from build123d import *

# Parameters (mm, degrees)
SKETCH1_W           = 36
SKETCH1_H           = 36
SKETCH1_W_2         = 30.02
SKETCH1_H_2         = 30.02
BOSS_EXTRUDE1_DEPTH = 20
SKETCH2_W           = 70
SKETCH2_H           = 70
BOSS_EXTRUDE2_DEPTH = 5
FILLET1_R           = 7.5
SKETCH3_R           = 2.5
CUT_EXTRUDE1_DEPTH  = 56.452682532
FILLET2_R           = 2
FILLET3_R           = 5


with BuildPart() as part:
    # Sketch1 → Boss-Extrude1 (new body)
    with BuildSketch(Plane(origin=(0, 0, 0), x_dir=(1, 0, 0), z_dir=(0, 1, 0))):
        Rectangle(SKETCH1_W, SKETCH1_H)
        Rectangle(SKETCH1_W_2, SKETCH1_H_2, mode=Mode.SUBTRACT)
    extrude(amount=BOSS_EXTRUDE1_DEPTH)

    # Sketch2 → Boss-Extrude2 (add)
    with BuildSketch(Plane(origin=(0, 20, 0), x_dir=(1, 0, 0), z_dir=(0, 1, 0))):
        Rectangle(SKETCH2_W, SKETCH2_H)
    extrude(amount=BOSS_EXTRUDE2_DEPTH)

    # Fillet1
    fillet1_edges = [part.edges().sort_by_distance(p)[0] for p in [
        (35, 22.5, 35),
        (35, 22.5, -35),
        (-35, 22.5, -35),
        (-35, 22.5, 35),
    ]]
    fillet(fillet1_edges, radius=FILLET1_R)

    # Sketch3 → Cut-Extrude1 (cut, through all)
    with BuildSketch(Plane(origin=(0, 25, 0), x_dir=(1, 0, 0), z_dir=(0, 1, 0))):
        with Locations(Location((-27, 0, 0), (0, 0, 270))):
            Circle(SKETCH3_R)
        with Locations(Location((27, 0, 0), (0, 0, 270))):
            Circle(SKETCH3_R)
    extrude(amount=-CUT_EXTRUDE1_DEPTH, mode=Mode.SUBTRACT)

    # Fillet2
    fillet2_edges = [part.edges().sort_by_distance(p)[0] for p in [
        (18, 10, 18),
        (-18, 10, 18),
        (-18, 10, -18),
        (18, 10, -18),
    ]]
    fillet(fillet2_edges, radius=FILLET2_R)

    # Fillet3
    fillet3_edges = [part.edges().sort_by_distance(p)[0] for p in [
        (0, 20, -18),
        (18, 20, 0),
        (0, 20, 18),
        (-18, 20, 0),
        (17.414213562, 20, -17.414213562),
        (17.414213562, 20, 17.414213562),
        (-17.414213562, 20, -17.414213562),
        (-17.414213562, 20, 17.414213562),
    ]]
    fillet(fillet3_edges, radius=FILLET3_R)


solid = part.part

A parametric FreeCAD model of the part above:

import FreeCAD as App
import Part
import Sketcher
from FreeCAD import Vector


def edges_at(feature, points):
    """Names of the edges that pass closest to the given points."""
    edges = feature.Shape.Edges
    near = lambda p: min(range(len(edges)), key=lambda i: edges[i].distToShape(Part.Vertex(*p))[0])
    return sorted({f"Edge{near(p) + 1}" for p in points})


def add_polygon(sketch, points):
    """Adds a closed chain of lines whose ends are joined by coincident constraints."""
    first, n = sketch.GeometryCount, len(points)
    for a, b in zip(points, points[1:] + points[:1]):
        sketch.addGeometry(Part.LineSegment(App.Vector(*a, 0), App.Vector(*b, 0)), False)
    for i in range(n):
        sketch.addConstraint(Sketcher.Constraint("Coincident", first + i, 2, first + (i + 1) % n, 1))

doc = App.newDocument("Part")
body = doc.addObject("PartDesign::Body", "Body")

sketch1 = body.newObject("Sketcher::SketchObject", "Sketch")
sketch1.AttachmentSupport = (doc.getObject("XZ_Plane"), [""])
sketch1.MapMode = "FlatFace"
add_polygon(sketch1, [(-18, -18), (-18, 18), (18, 18), (18, -18)])
add_polygon(sketch1, [(15.01, 15.01), (-15.01, 15.01), (-15.01, -15.01), (15.01, -15.01)])
sketch1.addConstraint(Sketcher.Constraint("Vertical", 0))
sketch1.addConstraint(Sketcher.Constraint("Horizontal", 1))
sketch1.addConstraint(Sketcher.Constraint("Vertical", 2))
sketch1.addConstraint(Sketcher.Constraint("Horizontal", 3))
sketch1.addConstraint(Sketcher.Constraint("Horizontal", 4))
sketch1.addConstraint(Sketcher.Constraint("Vertical", 5))
sketch1.addConstraint(Sketcher.Constraint("Horizontal", 6))
sketch1.addConstraint(Sketcher.Constraint("Vertical", 7))
sketch1.addConstraint(Sketcher.Constraint("Symmetric", 0, 2, 2, 2, -1, 1))
sketch1.addConstraint(Sketcher.Constraint("Symmetric", 4, 2, 6, 2, -1, 1))
sketch1.addConstraint(Sketcher.Constraint("Equal", 3, 0))
sketch1.addConstraint(Sketcher.Constraint("Equal", 6, 5))
sketch1.addConstraint(Sketcher.Constraint("DistanceX", 1, 1, 1, 2, 36.0))
sketch1.addConstraint(Sketcher.Constraint("DistanceX", 4, 2, 4, 1, 30.02))
pad1 = body.newObject("PartDesign::Pad", "Pad")
pad1.Profile = sketch1
pad1.Length = 20
pad1.Reversed = True

sketch2 = body.newObject("Sketcher::SketchObject", "Sketch001")
sketch2.AttachmentSupport = (doc.getObject("XZ_Plane"), [""])
sketch2.MapMode = "FlatFace"
sketch2.AttachmentOffset = App.Placement(Vector(0, 0, -20), App.Rotation())
add_polygon(sketch2, [(-35, -35), (-35, 35), (35, 35), (35, -35)])
sketch2.addConstraint(Sketcher.Constraint("Vertical", 0))
sketch2.addConstraint(Sketcher.Constraint("Horizontal", 1))
sketch2.addConstraint(Sketcher.Constraint("Vertical", 2))
sketch2.addConstraint(Sketcher.Constraint("Horizontal", 3))
sketch2.addConstraint(Sketcher.Constraint("Symmetric", 0, 2, 2, 2, -1, 1))
sketch2.addConstraint(Sketcher.Constraint("Equal", 3, 0))
sketch2.addConstraint(Sketcher.Constraint("DistanceX", 1, 1, 1, 2, 70.0))
pad2 = body.newObject("PartDesign::Pad", "Pad001")
pad2.Profile = sketch2
pad2.Length = 5
pad2.Reversed = True
doc.recompute()

fillet = body.newObject("PartDesign::Fillet", "Fillet")
fillet.Base = (pad2, edges_at(pad2, [
    (35, 22.5, 35),
    (35, 22.5, -35),
    (-35, 22.5, -35),
    (-35, 22.5, 35),
]))
fillet.Radius = 7.5

sketch3 = body.newObject("Sketcher::SketchObject", "Sketch002")
sketch3.AttachmentSupport = (doc.getObject("XZ_Plane"), [""])
sketch3.MapMode = "FlatFace"
sketch3.AttachmentOffset = App.Placement(Vector(0, 0, -25), App.Rotation())
sketch3.addGeometry(Part.Circle(Vector(-27, 0, 0), Vector(0, 0, 1), 2.5), False)
sketch3.addGeometry(Part.Circle(Vector(27, 0, 0), Vector(0, 0, 1), 2.5), False)
sketch3.addConstraint(Sketcher.Constraint("Equal", 0, 1))
sketch3.addConstraint(Sketcher.Constraint("Symmetric", 0, 3, 1, 3, -1, 1))
sketch3.addConstraint(Sketcher.Constraint("PointOnObject", 0, 3, -1))
sketch3.addConstraint(Sketcher.Constraint("Diameter", 0, 5.0))
sketch3.addConstraint(Sketcher.Constraint("DistanceX", 0, 3, -1, 1, 27.0))
pocket1 = body.newObject("PartDesign::Pocket", "Pocket")
pocket1.Profile = sketch3
pocket1.Type = "ThroughAll"
pocket1.Reversed = True
doc.recompute()

fillet2 = body.newObject("PartDesign::Fillet", "Fillet001")
fillet2.Base = (pocket1, edges_at(pocket1, [
    (18, 10, 18),
    (-18, 10, 18),
    (-18, 10, -18),
    (18, 10, -18),
]))
fillet2.Radius = 2
doc.recompute()

fillet3 = body.newObject("PartDesign::Fillet", "Fillet002")
fillet3.Base = (fillet2, edges_at(fillet2, [
    (0, 20, -18),
    (18, 20, 0),
    (0, 20, 18),
    (-18, 20, 0),
    (17.414, 20, -17.414),
    (17.414, 20, 17.414),
    (-17.414, 20, -17.414),
    (-17.414, 20, 17.414),
]))
fillet3.Radius = 5

doc.recompute()
